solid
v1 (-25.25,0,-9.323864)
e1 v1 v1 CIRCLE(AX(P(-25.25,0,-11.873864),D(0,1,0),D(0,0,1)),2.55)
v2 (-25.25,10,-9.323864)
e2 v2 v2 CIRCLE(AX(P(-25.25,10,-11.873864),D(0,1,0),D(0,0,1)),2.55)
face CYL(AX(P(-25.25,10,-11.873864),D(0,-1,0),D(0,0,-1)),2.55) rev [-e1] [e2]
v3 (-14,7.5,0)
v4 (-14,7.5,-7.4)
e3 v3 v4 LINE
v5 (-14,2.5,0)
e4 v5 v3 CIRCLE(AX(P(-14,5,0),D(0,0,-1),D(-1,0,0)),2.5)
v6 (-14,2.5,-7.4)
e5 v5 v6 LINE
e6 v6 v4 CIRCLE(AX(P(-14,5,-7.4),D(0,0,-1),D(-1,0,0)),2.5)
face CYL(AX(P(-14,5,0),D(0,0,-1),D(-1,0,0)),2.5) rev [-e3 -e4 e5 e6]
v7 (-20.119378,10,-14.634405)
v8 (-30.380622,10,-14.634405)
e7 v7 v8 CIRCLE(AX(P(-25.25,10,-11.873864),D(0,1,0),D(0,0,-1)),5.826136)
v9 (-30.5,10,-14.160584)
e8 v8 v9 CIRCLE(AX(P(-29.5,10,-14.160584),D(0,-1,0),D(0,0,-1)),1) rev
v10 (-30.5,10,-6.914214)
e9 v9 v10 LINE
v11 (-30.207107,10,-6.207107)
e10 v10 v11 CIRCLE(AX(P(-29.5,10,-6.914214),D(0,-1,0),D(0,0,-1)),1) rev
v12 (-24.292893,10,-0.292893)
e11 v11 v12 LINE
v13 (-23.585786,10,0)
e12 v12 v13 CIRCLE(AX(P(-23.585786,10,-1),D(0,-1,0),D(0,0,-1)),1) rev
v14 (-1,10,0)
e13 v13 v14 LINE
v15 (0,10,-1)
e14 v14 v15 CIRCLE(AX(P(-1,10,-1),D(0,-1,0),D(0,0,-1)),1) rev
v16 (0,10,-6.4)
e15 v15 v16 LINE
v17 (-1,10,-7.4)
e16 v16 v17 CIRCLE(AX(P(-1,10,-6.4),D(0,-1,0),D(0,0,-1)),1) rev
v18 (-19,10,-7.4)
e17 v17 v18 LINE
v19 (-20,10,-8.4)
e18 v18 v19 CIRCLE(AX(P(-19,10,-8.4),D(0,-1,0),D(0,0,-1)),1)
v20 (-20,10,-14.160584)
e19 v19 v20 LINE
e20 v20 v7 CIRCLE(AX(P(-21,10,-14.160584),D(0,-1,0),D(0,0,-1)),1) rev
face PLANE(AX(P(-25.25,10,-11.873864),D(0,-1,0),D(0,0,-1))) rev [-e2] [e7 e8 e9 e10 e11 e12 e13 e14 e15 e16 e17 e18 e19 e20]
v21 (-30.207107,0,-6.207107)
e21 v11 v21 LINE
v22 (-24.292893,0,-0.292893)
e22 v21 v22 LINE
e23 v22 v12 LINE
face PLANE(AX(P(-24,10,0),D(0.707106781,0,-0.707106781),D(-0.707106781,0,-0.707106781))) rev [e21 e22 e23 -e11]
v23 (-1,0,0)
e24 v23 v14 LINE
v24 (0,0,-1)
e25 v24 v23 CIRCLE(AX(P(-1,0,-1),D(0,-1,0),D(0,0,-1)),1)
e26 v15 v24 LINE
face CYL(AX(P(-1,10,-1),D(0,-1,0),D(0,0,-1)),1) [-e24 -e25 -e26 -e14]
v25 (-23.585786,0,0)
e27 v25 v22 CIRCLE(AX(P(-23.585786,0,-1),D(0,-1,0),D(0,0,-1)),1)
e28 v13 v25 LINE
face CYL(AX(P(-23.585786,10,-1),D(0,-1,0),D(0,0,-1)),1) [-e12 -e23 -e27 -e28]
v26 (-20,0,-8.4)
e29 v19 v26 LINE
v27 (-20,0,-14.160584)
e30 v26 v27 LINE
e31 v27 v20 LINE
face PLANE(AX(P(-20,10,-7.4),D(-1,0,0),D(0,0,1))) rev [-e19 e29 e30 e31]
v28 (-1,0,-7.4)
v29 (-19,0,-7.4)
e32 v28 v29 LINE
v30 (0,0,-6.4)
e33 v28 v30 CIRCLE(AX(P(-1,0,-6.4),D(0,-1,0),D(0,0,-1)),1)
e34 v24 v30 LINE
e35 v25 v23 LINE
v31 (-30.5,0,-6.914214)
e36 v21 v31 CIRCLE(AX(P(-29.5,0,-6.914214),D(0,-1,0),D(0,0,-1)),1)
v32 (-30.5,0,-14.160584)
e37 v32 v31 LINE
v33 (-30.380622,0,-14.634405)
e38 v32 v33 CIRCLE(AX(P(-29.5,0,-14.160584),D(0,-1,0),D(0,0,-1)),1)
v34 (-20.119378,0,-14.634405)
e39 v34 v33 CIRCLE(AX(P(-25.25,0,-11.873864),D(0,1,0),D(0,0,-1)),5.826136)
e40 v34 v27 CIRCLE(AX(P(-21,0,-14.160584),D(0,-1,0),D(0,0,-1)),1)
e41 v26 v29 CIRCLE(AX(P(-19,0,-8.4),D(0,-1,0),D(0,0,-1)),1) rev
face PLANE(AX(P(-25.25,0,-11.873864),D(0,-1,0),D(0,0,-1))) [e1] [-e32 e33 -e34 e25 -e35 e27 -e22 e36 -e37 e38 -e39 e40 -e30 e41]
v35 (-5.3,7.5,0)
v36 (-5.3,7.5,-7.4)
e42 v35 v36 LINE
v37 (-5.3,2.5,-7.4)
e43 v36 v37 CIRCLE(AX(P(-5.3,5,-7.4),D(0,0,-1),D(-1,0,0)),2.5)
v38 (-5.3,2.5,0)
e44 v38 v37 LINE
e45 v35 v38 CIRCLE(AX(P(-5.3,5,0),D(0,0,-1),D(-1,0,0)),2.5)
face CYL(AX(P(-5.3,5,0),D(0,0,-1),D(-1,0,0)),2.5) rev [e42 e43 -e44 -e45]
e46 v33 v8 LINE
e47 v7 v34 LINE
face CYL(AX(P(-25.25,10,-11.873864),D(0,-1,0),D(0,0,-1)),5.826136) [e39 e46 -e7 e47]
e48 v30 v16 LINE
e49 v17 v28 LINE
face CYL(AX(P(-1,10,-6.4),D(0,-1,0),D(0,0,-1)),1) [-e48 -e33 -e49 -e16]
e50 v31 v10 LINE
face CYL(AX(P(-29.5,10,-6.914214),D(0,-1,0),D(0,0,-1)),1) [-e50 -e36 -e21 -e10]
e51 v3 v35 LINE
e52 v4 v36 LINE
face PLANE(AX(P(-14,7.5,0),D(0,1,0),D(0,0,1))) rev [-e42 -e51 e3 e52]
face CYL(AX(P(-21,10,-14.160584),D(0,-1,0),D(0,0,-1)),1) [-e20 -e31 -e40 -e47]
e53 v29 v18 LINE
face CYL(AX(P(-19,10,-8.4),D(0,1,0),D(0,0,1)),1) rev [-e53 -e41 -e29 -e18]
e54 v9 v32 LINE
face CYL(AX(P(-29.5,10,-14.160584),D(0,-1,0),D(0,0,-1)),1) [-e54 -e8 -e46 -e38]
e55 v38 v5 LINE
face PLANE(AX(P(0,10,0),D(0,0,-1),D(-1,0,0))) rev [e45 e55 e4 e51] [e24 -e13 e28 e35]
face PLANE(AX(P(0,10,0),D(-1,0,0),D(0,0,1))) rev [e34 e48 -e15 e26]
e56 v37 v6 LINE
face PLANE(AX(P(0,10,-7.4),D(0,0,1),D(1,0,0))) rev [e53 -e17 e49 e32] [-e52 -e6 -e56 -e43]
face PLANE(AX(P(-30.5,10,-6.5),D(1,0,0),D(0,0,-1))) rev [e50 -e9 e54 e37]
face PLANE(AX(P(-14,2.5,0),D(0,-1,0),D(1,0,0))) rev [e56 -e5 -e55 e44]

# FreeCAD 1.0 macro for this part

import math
import FreeCAD as App
import Part
import Sketcher

V = App.Vector
Q = App.Units.Quantity


def edges_at(feature, points):
    """Names of the edges that pass closest to the given points."""
    edges = feature.Shape.Edges
    near = lambda p: min(range(len(edges)), key=lambda i: edges[i].distToShape(Part.Vertex(*p))[0])
    return sorted({f"Edge{near(p) + 1}" for p in points})

doc = App.newDocument("Part")
body = doc.addObject("PartDesign::Body", "Body")

# Sketch on XZ plane
sketch1 = body.newObject("Sketcher::SketchObject", "Sketch")
sketch1.AttachmentSupport = (doc.getObject("XZ_Plane"), [""])
sketch1.MapMode = "FlatFace"
sketch1.addGeometry([
    Part.LineSegment(V(0, 0, 0), V(0, -7.4, 0)),  # 0
    Part.LineSegment(V(0, -7.4, 0), V(-20, -7.4, 0)),  # 1
    Part.LineSegment(V(-20, -7.4, 0), V(-20, -14.4, 0)),  # 2
    Part.ArcOfCircle(Part.Circle(V(-25.2, -11.9, 0), V(0, 0, 1), 5.8), math.radians(-154), math.radians(-26)),  # 3
    Part.LineSegment(V(-30.5, -14.4, 0), V(-30.5, -6.5, 0)),  # 4
    Part.LineSegment(V(-30.5, -6.5, 0), V(-24, 0, 0)),  # 5
    Part.LineSegment(V(-24, 0, 0), V(0, 0, 0)),  # 6
    Part.Circle(V(-25.2, -11.9, 0), V(0, 0, 1), 2.5),  # 7
], False)
sketch1.addConstraint([
    Sketcher.Constraint("Coincident", 0, 2, 1, 1),
    Sketcher.Constraint("Coincident", 1, 2, 2, 1),
    Sketcher.Constraint("Coincident", 2, 2, 3, 2),
    Sketcher.Constraint("Coincident", 3, 1, 4, 1),
    Sketcher.Constraint("Coincident", 4, 2, 5, 1),
    Sketcher.Constraint("Coincident", 5, 2, 6, 1),
    Sketcher.Constraint("Coincident", 6, 2, 0, 1),
    Sketcher.Constraint("Vertical", 0),
    Sketcher.Constraint("Horizontal", 1),
    Sketcher.Constraint("Vertical", 2),
    Sketcher.Constraint("Vertical", 4),
    Sketcher.Constraint("Horizontal", 6),
    Sketcher.Constraint("Coincident", 6, 2, -1, 1),
    Sketcher.Constraint("Coincident", 7, 3, 3, 3),
    Sketcher.Constraint("Horizontal", 2, 2, 3, 1),
    Sketcher.Constraint("Diameter", 7, 5.1),
    Sketcher.Constraint("DistanceX", 1, 2, 1, 1, 20.0),
    Sketcher.Constraint("DistanceX", 6, 1, 6, 2, 24.0),
    Sketcher.Constraint("DistanceY", 2, 2, 2, 1, 7.0),
    Sketcher.Constraint("Angle", 5, Q("45 deg")),
    Sketcher.Constraint("DistanceY", 0, 2, 0, 1, 7.4),
    Sketcher.Constraint("DistanceY", 4, 1, 4, 2, 7.9),
    Sketcher.Constraint("Radius", 3, 5.826136),
])
pad1 = body.newObject("PartDesign::Pad", "Pad")
pad1.Profile = sketch1
pad1.Length = 10
pad1.Reversed = True

# Sketch on XY plane
sketch2 = body.newObject("Sketcher::SketchObject", "Sketch001")
sketch2.AttachmentSupport = (doc.getObject("XY_Plane"), [""])
sketch2.MapMode = "FlatFace"
sketch2.AttachmentOffset = App.Placement(V(0, 0, -7.4), App.Rotation())
sketch2.addGeometry([
    Part.LineSegment(V(-5.3, 2.5, 0), V(-14, 2.5, 0)),
    Part.ArcOfCircle(Part.Circle(V(-14, 5, 0), V(0, 0, 1), 2.5), math.radians(90), math.radians(270)),
    Part.LineSegment(V(-14, 7.5, 0), V(-5.3, 7.5, 0)),
    Part.ArcOfCircle(Part.Circle(V(-5.3, 5, 0), V(0, 0, 1), 2.5), math.radians(-90), math.radians(90)),
], False)
sketch2.addConstraint([
    Sketcher.Constraint("Tangent", 0, 2, 1, 2),
    Sketcher.Constraint("Tangent", 1, 1, 2, 1),
    Sketcher.Constraint("Tangent", 2, 2, 3, 2),
    Sketcher.Constraint("Tangent", 3, 1, 0, 1),
    Sketcher.Constraint("Horizontal", 0),
    Sketcher.Constraint("Horizontal", 2),
    Sketcher.Constraint("Radius", 1, 2.5),
    Sketcher.Constraint("DistanceX", 0, 2, 0, 1, 8.7),
    Sketcher.Constraint("DistanceX", 1, 3, -1, 1, 14.0),
    Sketcher.Constraint("DistanceY", -1, 1, 1, 3, 5.0),
])
pocket1 = body.newObject("PartDesign::Pocket", "Pocket")
pocket1.Profile = sketch2
pocket1.Type = "ThroughAll"
pocket1.Reversed = True
doc.recompute()

fillet = body.newObject("PartDesign::Fillet", "Fillet")
fillet.Base = (pocket1, edges_at(pocket1, [
    (-24, 5, 0),
    (-30.5, 5, -6.5),
    (-30.5, 5, -14.4),
    (-20, 5, -14.4),
    (-20, 5, -7.4),
    (0, 5, -7.4),
    (0, 5, 0),
]))
fillet.Radius = 1

doc.recompute()
